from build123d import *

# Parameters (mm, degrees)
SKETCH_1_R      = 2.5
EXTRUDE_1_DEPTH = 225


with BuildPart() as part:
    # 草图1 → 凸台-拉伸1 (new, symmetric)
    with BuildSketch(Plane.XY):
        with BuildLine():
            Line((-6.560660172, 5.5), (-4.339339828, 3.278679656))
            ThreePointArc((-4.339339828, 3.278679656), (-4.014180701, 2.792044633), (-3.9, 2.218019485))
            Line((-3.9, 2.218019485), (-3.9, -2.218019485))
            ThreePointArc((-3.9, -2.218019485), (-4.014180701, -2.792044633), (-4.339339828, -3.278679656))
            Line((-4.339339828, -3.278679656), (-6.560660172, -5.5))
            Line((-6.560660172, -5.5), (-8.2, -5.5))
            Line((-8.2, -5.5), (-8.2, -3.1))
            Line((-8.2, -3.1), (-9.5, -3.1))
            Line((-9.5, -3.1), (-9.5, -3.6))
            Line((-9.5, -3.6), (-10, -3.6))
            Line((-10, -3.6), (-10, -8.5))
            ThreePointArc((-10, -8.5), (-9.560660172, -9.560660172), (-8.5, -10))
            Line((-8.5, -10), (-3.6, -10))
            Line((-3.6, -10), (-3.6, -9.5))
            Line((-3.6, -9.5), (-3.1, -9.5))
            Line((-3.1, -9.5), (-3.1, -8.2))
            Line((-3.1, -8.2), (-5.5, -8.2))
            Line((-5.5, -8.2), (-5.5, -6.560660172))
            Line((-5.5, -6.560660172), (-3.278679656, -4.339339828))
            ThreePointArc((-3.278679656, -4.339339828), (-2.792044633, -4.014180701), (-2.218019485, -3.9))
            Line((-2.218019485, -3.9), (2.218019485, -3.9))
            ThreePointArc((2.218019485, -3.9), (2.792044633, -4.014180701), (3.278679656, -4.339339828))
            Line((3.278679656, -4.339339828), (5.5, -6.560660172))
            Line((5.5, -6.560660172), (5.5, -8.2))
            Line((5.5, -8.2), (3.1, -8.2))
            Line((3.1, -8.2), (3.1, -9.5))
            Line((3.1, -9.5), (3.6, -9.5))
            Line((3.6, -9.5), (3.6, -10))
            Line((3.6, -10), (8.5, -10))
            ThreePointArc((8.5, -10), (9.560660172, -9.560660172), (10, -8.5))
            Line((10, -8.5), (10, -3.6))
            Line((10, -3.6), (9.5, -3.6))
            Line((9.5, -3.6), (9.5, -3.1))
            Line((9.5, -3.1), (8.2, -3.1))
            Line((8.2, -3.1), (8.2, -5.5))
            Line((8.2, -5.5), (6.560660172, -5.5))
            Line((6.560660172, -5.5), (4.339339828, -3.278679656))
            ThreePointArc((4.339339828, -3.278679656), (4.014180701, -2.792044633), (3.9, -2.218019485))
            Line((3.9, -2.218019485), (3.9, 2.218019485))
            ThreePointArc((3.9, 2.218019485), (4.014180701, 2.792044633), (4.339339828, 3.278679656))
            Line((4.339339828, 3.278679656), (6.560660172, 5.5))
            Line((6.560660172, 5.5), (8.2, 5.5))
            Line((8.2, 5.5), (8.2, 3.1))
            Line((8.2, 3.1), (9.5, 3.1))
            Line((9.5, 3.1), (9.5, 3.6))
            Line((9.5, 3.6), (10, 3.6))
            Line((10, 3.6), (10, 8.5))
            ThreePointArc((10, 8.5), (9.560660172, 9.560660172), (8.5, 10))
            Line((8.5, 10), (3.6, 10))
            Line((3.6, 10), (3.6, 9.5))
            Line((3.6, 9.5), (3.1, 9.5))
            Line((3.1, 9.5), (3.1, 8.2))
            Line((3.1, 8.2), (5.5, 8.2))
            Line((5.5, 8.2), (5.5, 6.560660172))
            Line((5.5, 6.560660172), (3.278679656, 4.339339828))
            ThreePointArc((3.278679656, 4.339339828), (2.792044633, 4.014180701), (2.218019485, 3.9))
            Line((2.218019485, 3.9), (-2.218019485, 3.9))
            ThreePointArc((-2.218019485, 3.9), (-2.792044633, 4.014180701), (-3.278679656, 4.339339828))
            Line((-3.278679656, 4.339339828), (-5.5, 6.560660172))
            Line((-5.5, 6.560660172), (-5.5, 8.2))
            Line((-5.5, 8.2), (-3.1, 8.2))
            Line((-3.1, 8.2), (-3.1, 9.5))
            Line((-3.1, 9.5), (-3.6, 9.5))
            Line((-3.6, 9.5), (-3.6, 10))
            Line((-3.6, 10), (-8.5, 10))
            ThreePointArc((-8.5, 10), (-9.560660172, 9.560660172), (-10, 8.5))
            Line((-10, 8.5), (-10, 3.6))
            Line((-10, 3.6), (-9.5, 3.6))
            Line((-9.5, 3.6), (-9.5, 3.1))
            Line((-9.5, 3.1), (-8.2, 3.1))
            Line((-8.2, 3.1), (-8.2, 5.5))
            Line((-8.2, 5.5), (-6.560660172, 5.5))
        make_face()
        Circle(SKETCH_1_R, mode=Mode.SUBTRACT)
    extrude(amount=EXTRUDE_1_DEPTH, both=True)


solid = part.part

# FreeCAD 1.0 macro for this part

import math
import FreeCAD as App
import Part
import Sketcher
from FreeCAD import Vector

doc = App.newDocument("Part")
body = doc.addObject("PartDesign::Body", "Body")

sketch1 = body.newObject("Sketcher::SketchObject", "Sketch")
sketch1.AttachmentSupport = (doc.getObject("XY_Plane"), [""])
sketch1.MapMode = "FlatFace"
sketch1.addGeometry(Part.LineSegment(Vector(-6.6, 5.5, 0), Vector(-4.3, 3.3, 0)), False)
sketch1.addGeometry(Part.ArcOfCircle(Part.Circle(Vector(-5.4, 2.2, 0), Vector(0, 0, 1), 1.5), math.radians(0), math.radians(45)), False)
sketch1.addGeometry(Part.LineSegment(Vector(-3.9, 2.2, 0), Vector(-3.9, -2.2, 0)), False)
sketch1.addGeometry(Part.ArcOfCircle(Part.Circle(Vector(-5.4, -2.2, 0), Vector(0, 0, 1), 1.5), math.radians(-45), math.radians(0)), False)
sketch1.addGeometry(Part.LineSegment(Vector(-4.3, -3.3, 0), Vector(-6.6, -5.5, 0)), False)
sketch1.addGeometry(Part.LineSegment(Vector(-6.6, -5.5, 0), Vector(-8.2, -5.5, 0)), False)
sketch1.addGeometry(Part.LineSegment(Vector(-8.2, -5.5, 0), Vector(-8.2, -3.1, 0)), False)
sketch1.addGeometry(Part.LineSegment(Vector(-8.2, -3.1, 0), Vector(-9.5, -3.1, 0)), False)
sketch1.addGeometry(Part.LineSegment(Vector(-9.5, -3.1, 0), Vector(-9.5, -3.6, 0)), False)
sketch1.addGeometry(Part.LineSegment(Vector(-9.5, -3.6, 0), Vector(-10, -3.6, 0)), False)
sketch1.addGeometry(Part.LineSegment(Vector(-10, -3.6, 0), Vector(-10, -8.5, 0)), False)
sketch1.addGeometry(Part.ArcOfCircle(Part.Circle(Vector(-8.5, -8.5, 0), Vector(0, 0, 1), 1.5), math.radians(180), math.radians(270)), False)
sketch1.addGeometry(Part.LineSegment(Vector(-8.5, -10, 0), Vector(-3.6, -10, 0)), False)
sketch1.addGeometry(Part.LineSegment(Vector(-3.6, -10, 0), Vector(-3.6, -9.5, 0)), False)
sketch1.addGeometry(Part.LineSegment(Vector(-3.6, -9.5, 0), Vector(-3.1, -9.5, 0)), False)
sketch1.addGeometry(Part.LineSegment(Vector(-3.1, -9.5, 0), Vector(-3.1, -8.2, 0)), False)
sketch1.addGeometry(Part.LineSegment(Vector(-3.1, -8.2, 0), Vector(-5.5, -8.2, 0)), False)
sketch1.addGeometry(Part.LineSegment(Vector(-5.5, -8.2, 0), Vector(-5.5, -6.6, 0)), False)
sketch1.addGeometry(Part.LineSegment(Vector(-5.5, -6.6, 0), Vector(-3.3, -4.3, 0)), False)
sketch1.addGeometry(Part.ArcOfCircle(Part.Circle(Vector(-2.2, -5.4, 0), Vector(0, 0, 1), 1.5), math.radians(90), math.radians(135)), False)
sketch1.addGeometry(Part.LineSegment(Vector(-2.2, -3.9, 0), Vector(2.2, -3.9, 0)), False)
sketch1.addGeometry(Part.ArcOfCircle(Part.Circle(Vector(2.2, -5.4, 0), Vector(0, 0, 1), 1.5), math.radians(45), math.radians(90)), False)
sketch1.addGeometry(Part.LineSegment(Vector(3.3, -4.3, 0), Vector(5.5, -6.6, 0)), False)
sketch1.addGeometry(Part.LineSegment(Vector(5.5, -6.6, 0), Vector(5.5, -8.2, 0)), False)
sketch1.addGeometry(Part.LineSegment(Vector(5.5, -8.2, 0), Vector(3.1, -8.2, 0)), False)
sketch1.addGeometry(Part.LineSegment(Vector(3.1, -8.2, 0), Vector(3.1, -9.5, 0)), False)
sketch1.addGeometry(Part.LineSegment(Vector(3.1, -9.5, 0), Vector(3.6, -9.5, 0)), False)
sketch1.addGeometry(Part.LineSegment(Vector(3.6, -9.5, 0), Vector(3.6, -10, 0)), False)
sketch1.addGeometry(Part.LineSegment(Vector(3.6, -10, 0), Vector(8.5, -10, 0)), False)
sketch1.addGeometry(Part.ArcOfCircle(Part.Circle(Vector(8.5, -8.5, 0), Vector(0, 0, 1), 1.5), math.radians(-90), math.radians(0)), False)
sketch1.addGeometry(Part.LineSegment(Vector(10, -8.5, 0), Vector(10, -3.6, 0)), False)
sketch1.addGeometry(Part.LineSegment(Vector(10, -3.6, 0), Vector(9.5, -3.6, 0)), False)
sketch1.addGeometry(Part.LineSegment(Vector(9.5, -3.6, 0), Vector(9.5, -3.1, 0)), False)
sketch1.addGeometry(Part.LineSegment(Vector(9.5, -3.1, 0), Vector(8.2, -3.1, 0)), False)
sketch1.addGeometry(Part.LineSegment(Vector(8.2, -3.1, 0), Vector(8.2, -5.5, 0)), False)
sketch1.addGeometry(Part.LineSegment(Vector(8.2, -5.5, 0), Vector(6.6, -5.5, 0)), False)
sketch1.addGeometry(Part.LineSegment(Vector(6.6, -5.5, 0), Vector(4.3, -3.3, 0)), False)
sketch1.addGeometry(Part.ArcOfCircle(Part.Circle(Vector(5.4, -2.2, 0), Vector(0, 0, 1), 1.5), math.radians(180), math.radians(225)), False)
sketch1.addGeometry(Part.LineSegment(Vector(3.9, -2.2, 0), Vector(3.9, 2.2, 0)), False)
sketch1.addGeometry(Part.ArcOfCircle(Part.Circle(Vector(5.4, 2.2, 0), Vector(0, 0, 1), 1.5), math.radians(135), math.radians(180)), False)
sketch1.addGeometry(Part.LineSegment(Vector(4.3, 3.3, 0), Vector(6.6, 5.5, 0)), False)
sketch1.addGeometry(Part.LineSegment(Vector(6.6, 5.5, 0), Vector(8.2, 5.5, 0)), False)
sketch1.addGeometry(Part.LineSegment(Vector(8.2, 5.5, 0), Vector(8.2, 3.1, 0)), False)
sketch1.addGeometry(Part.LineSegment(Vector(8.2, 3.1, 0), Vector(9.5, 3.1, 0)), False)
sketch1.addGeometry(Part.LineSegment(Vector(9.5, 3.1, 0), Vector(9.5, 3.6, 0)), False)
sketch1.addGeometry(Part.LineSegment(Vector(9.5, 3.6, 0), Vector(10, 3.6, 0)), False)
sketch1.addGeometry(Part.LineSegment(Vector(10, 3.6, 0), Vector(10, 8.5, 0)), False)
sketch1.addGeometry(Part.ArcOfCircle(Part.Circle(Vector(8.5, 8.5, 0), Vector(0, 0, 1), 1.5), math.radians(0), math.radians(90)), False)
sketch1.addGeometry(Part.LineSegment(Vector(8.5, 10, 0), Vector(3.6, 10, 0)), False)
sketch1.addGeometry(Part.LineSegment(Vector(3.6, 10, 0), Vector(3.6, 9.5, 0)), False)
sketch1.addGeometry(Part.LineSegment(Vector(3.6, 9.5, 0), Vector(3.1, 9.5, 0)), False)
sketch1.addGeometry(Part.LineSegment(Vector(3.1, 9.5, 0), Vector(3.1, 8.2, 0)), False)
sketch1.addGeometry(Part.LineSegment(Vector(3.1, 8.2, 0), Vector(5.5, 8.2, 0)), False)
sketch1.addGeometry(Part.LineSegment(Vector(5.5, 8.2, 0), Vector(5.5, 6.6, 0)), False)
sketch1.addGeometry(Part.LineSegment(Vector(5.5, 6.6, 0), Vector(3.3, 4.3, 0)), False)
sketch1.addGeometry(Part.ArcOfCircle(Part.Circle(Vector(2.2, 5.4, 0), Vector(0, 0, 1), 1.5), math.radians(-90), math.radians(-45)), False)
sketch1.addGeometry(Part.LineSegment(Vector(2.2, 3.9, 0), Vector(-2.2, 3.9, 0)), False)
sketch1.addGeometry(Part.ArcOfCircle(Part.Circle(Vector(-2.2, 5.4, 0), Vector(0, 0, 1), 1.5), math.radians(-135), math.radians(-90)), False)
sketch1.addGeometry(Part.LineSegment(Vector(-3.3, 4.3, 0), Vector(-5.5, 6.6, 0)), False)
sketch1.addGeometry(Part.LineSegment(Vector(-5.5, 6.6, 0), Vector(-5.5, 8.2, 0)), False)
sketch1.addGeometry(Part.LineSegment(Vector(-5.5, 8.2, 0), Vector(-3.1, 8.2, 0)), False)
sketch1.addGeometry(Part.LineSegment(Vector(-3.1, 8.2, 0), Vector(-3.1, 9.5, 0)), False)
sketch1.addGeometry(Part.LineSegment(Vector(-3.1, 9.5, 0), Vector(-3.6, 9.5, 0)), False)
sketch1.addGeometry(Part.LineSegment(Vector(-3.6, 9.5, 0), Vector(-3.6, 10, 0)), False)
sketch1.addGeometry(Part.LineSegment(Vector(-3.6, 10, 0), Vector(-8.5, 10, 0)), False)
sketch1.addGeometry(Part.ArcOfCircle(Part.Circle(Vector(-8.5, 8.5, 0), Vector(0, 0, 1), 1.5), math.radians(90), math.radians(180)), False)
sketch1.addGeometry(Part.LineSegment(Vector(-10, 8.5, 0), Vector(-10, 3.6, 0)), False)
sketch1.addGeometry(Part.LineSegment(Vector(-10, 3.6, 0), Vector(-9.5, 3.6, 0)), False)
sketch1.addGeometry(Part.LineSegment(Vector(-9.5, 3.6, 0), Vector(-9.5, 3.1, 0)), False)
sketch1.addGeometry(Part.LineSegment(Vector(-9.5, 3.1, 0), Vector(-8.2, 3.1, 0)), False)
sketch1.addGeometry(Part.LineSegment(Vector(-8.2, 3.1, 0), Vector(-8.2, 5.5, 0)), False)
sketch1.addGeometry(Part.LineSegment(Vector(-8.2, 5.5, 0), Vector(-6.6, 5.5, 0)), False)
sketch1.addGeometry(Part.Circle(Vector(0, 0, 0), Vector(0, 0, 1), 2.5), False)
sketch1.addConstraint(Sketcher.Constraint("Tangent", 0, 2, 1, 2))
sketch1.addConstraint(Sketcher.Constraint("Tangent", 1, 1, 2, 1))
sketch1.addConstraint(Sketcher.Constraint("Tangent", 2, 2, 3, 2))
sketch1.addConstraint(Sketcher.Constraint("Tangent", 3, 1, 4, 1))
sketch1.addConstraint(Sketcher.Constraint("Coincident", 4, 2, 5, 1))
sketch1.addConstraint(Sketcher.Constraint("Coincident", 5, 2, 6, 1))
sketch1.addConstraint(Sketcher.Constraint("Coincident", 6, 2, 7, 1))
sketch1.addConstraint(Sketcher.Constraint("Coincident", 7, 2, 8, 1))
sketch1.addConstraint(Sketcher.Constraint("Coincident", 8, 2, 9, 1))
sketch1.addConstraint(Sketcher.Constraint("Coincident", 9, 2, 10, 1))
sketch1.addConstraint(Sketcher.Constraint("Tangent", 10, 2, 11, 1))
sketch1.addConstraint(Sketcher.Constraint("Tangent", 11, 2, 12, 1))
sketch1.addConstraint(Sketcher.Constraint("Coincident", 12, 2, 13, 1))
sketch1.addConstraint(Sketcher.Constraint("Coincident", 13, 2, 14, 1))
sketch1.addConstraint(Sketcher.Constraint("Coincident", 14, 2, 15, 1))
sketch1.addConstraint(Sketcher.Constraint("Coincident", 15, 2, 16, 1))
sketch1.addConstraint(Sketcher.Constraint("Coincident", 16, 2, 17, 1))
sketch1.addConstraint(Sketcher.Constraint("Coincident", 17, 2, 18, 1))
sketch1.addConstraint(Sketcher.Constraint("Tangent", 18, 2, 19, 2))
sketch1.addConstraint(Sketcher.Constraint("Tangent", 19, 1, 20, 1))
sketch1.addConstraint(Sketcher.Constraint("Tangent", 20, 2, 21, 2))
sketch1.addConstraint(Sketcher.Constraint("Tangent", 21, 1, 22, 1))
sketch1.addConstraint(Sketcher.Constraint("Coincident", 22, 2, 23, 1))
sketch1.addConstraint(Sketcher.Constraint("Coincident", 23, 2, 24, 1))
sketch1.addConstraint(Sketcher.Constraint("Coincident", 24, 2, 25, 1))
sketch1.addConstraint(Sketcher.Constraint("Coincident", 25, 2, 26, 1))
sketch1.addConstraint(Sketcher.Constraint("Coincident", 26, 2, 27, 1))
sketch1.addConstraint(Sketcher.Constraint("Coincident", 27, 2, 28, 1))
sketch1.addConstraint(Sketcher.Constraint("Tangent", 28, 2, 29, 1))
sketch1.addConstraint(Sketcher.Constraint("Tangent", 29, 2, 30, 1))
sketch1.addConstraint(Sketcher.Constraint("Coincident", 30, 2, 31, 1))
sketch1.addConstraint(Sketcher.Constraint("Coincident", 31, 2, 32, 1))
sketch1.addConstraint(Sketcher.Constraint("Coincident", 32, 2, 33, 1))
sketch1.addConstraint(Sketcher.Constraint("Coincident", 33, 2, 34, 1))
sketch1.addConstraint(Sketcher.Constraint("Coincident", 34, 2, 35, 1))
sketch1.addConstraint(Sketcher.Constraint("Coincident", 35, 2, 36, 1))
sketch1.addConstraint(Sketcher.Constraint("Tangent", 36, 2, 37, 2))
sketch1.addConstraint(Sketcher.Constraint("Tangent", 37, 1, 38, 1))
sketch1.addConstraint(Sketcher.Constraint("Tangent", 38, 2, 39, 2))
sketch1.addConstraint(Sketcher.Constraint("Tangent", 39, 1, 40, 1))
sketch1.addConstraint(Sketcher.Constraint("Coincident", 40, 2, 41, 1))
sketch1.addConstraint(Sketcher.Constraint("Coincident", 41, 2, 42, 1))
sketch1.addConstraint(Sketcher.Constraint("Coincident", 42, 2, 43, 1))
sketch1.addConstraint(Sketcher.Constraint("Coincident", 43, 2, 44, 1))
sketch1.addConstraint(Sketcher.Constraint("Coincident", 44, 2, 45, 1))
sketch1.addConstraint(Sketcher.Constraint("Coincident", 45, 2, 46, 1))
sketch1.addConstraint(Sketcher.Constraint("Tangent", 46, 2, 47, 1))
sketch1.addConstraint(Sketcher.Constraint("Tangent", 47, 2, 48, 1))
sketch1.addConstraint(Sketcher.Constraint("Coincident", 48, 2, 49, 1))
sketch1.addConstraint(Sketcher.Constraint("Coincident", 49, 2, 50, 1))
sketch1.addConstraint(Sketcher.Constraint("Coincident", 50, 2, 51, 1))
sketch1.addConstraint(Sketcher.Constraint("Coincident", 51, 2, 52, 1))
sketch1.addConstraint(Sketcher.Constraint("Coincident", 52, 2, 53, 1))
sketch1.addConstraint(Sketcher.Constraint("Coincident", 53, 2, 54, 1))
sketch1.addConstraint(Sketcher.Constraint("Tangent", 54, 2, 55, 2))
sketch1.addConstraint(Sketcher.Constraint("Tangent", 55, 1, 56, 1))
sketch1.addConstraint(Sketcher.Constraint("Tangent", 56, 2, 57, 2))
sketch1.addConstraint(Sketcher.Constraint("Tangent", 57, 1, 58, 1))
sketch1.addConstraint(Sketcher.Constraint("Coincident", 58, 2, 59, 1))
sketch1.addConstraint(Sketcher.Constraint("Coincident", 59, 2, 60, 1))
sketch1.addConstraint(Sketcher.Constraint("Coincident", 60, 2, 61, 1))
sketch1.addConstraint(Sketcher.Constraint("Coincident", 61, 2, 62, 1))
sketch1.addConstraint(Sketcher.Constraint("Coincident", 62, 2, 63, 1))
sketch1.addConstraint(Sketcher.Constraint("Coincident", 63, 2, 64, 1))
sketch1.addConstraint(Sketcher.Constraint("Tangent", 64, 2, 65, 1))
sketch1.addConstraint(Sketcher.Constraint("Tangent", 65, 2, 66, 1))
sketch1.addConstraint(Sketcher.Constraint("Coincident", 66, 2, 67, 1))
sketch1.addConstraint(Sketcher.Constraint("Coincident", 67, 2, 68, 1))
sketch1.addConstraint(Sketcher.Constraint("Coincident", 68, 2, 69, 1))
sketch1.addConstraint(Sketcher.Constraint("Coincident", 69, 2, 70, 1))
sketch1.addConstraint(Sketcher.Constraint("Coincident", 70, 2, 71, 1))
sketch1.addConstraint(Sketcher.Constraint("Coincident", 71, 2, 0, 1))
sketch1.addConstraint(Sketcher.Constraint("Vertical", 2))
sketch1.addConstraint(Sketcher.Constraint("Horizontal", 5))
sketch1.addConstraint(Sketcher.Constraint("Vertical", 6))
sketch1.addConstraint(Sketcher.Constraint("Horizontal", 7))
sketch1.addConstraint(Sketcher.Constraint("Vertical", 8))
sketch1.addConstraint(Sketcher.Constraint("Horizontal", 9))
sketch1.addConstraint(Sketcher.Constraint("Vertical", 10))
sketch1.addConstraint(Sketcher.Constraint("Horizontal", 12))
sketch1.addConstraint(Sketcher.Constraint("Vertical", 13))
sketch1.addConstraint(Sketcher.Constraint("Horizontal", 14))
sketch1.addConstraint(Sketcher.Constraint("Vertical", 15))
sketch1.addConstraint(Sketcher.Constraint("Horizontal", 16))
sketch1.addConstraint(Sketcher.Constraint("Vertical", 17))
sketch1.addConstraint(Sketcher.Constraint("Horizontal", 20))
sketch1.addConstraint(Sketcher.Constraint("Vertical", 23))
sketch1.addConstraint(Sketcher.Constraint("Horizontal", 24))
sketch1.addConstraint(Sketcher.Constraint("Vertical", 25))
sketch1.addConstraint(Sketcher.Constraint("Horizontal", 26))
sketch1.addConstraint(Sketcher.Constraint("Vertical", 27))
sketch1.addConstraint(Sketcher.Constraint("Horizontal", 28))
sketch1.addConstraint(Sketcher.Constraint("Vertical", 30))
sketch1.addConstraint(Sketcher.Constraint("Horizontal", 31))
sketch1.addConstraint(Sketcher.Constraint("Vertical", 32))
sketch1.addConstraint(Sketcher.Constraint("Horizontal", 33))
sketch1.addConstraint(Sketcher.Constraint("Vertical", 34))
sketch1.addConstraint(Sketcher.Constraint("Horizontal", 35))
sketch1.addConstraint(Sketcher.Constraint("Vertical", 38))
sketch1.addConstraint(Sketcher.Constraint("Horizontal", 41))
sketch1.addConstraint(Sketcher.Constraint("Vertical", 42))
sketch1.addConstraint(Sketcher.Constraint("Horizontal", 43))
sketch1.addConstraint(Sketcher.Constraint("Vertical", 44))
sketch1.addConstraint(Sketcher.Constraint("Horizontal", 45))
sketch1.addConstraint(Sketcher.Constraint("Vertical", 46))
sketch1.addConstraint(Sketcher.Constraint("Horizontal", 48))
sketch1.addConstraint(Sketcher.Constraint("Vertical", 49))
sketch1.addConstraint(Sketcher.Constraint("Horizontal", 50))
sketch1.addConstraint(Sketcher.Constraint("Vertical", 51))
sketch1.addConstraint(Sketcher.Constraint("Horizontal", 52))
sketch1.addConstraint(Sketcher.Constraint("Vertical", 53))
sketch1.addConstraint(Sketcher.Constraint("Horizontal", 56))
sketch1.addConstraint(Sketcher.Constraint("Vertical", 59))
sketch1.addConstraint(Sketcher.Constraint("Horizontal", 60))
sketch1.addConstraint(Sketcher.Constraint("Vertical", 61))
sketch1.addConstraint(Sketcher.Constraint("Horizontal", 62))
sketch1.addConstraint(Sketcher.Constraint("Vertical", 63))
sketch1.addConstraint(Sketcher.Constraint("Horizontal", 64))
sketch1.addConstraint(Sketcher.Constraint("Vertical", 66))
sketch1.addConstraint(Sketcher.Constraint("Horizontal", 67))
sketch1.addConstraint(Sketcher.Constraint("Vertical", 68))
sketch1.addConstraint(Sketcher.Constraint("Horizontal", 69))
sketch1.addConstraint(Sketcher.Constraint("Vertical", 70))
sketch1.addConstraint(Sketcher.Constraint("Horizontal", 71))
sketch1.addConstraint(Sketcher.Constraint("Coincident", 72, 3, -1, 1))
sketch1.addConstraint(Sketcher.Constraint("Equal", 1, 3))
sketch1.addConstraint(Sketcher.Constraint("Equal", 3, 11))
sketch1.addConstraint(Sketcher.Constraint("Equal", 11, 19))
sketch1.addConstraint(Sketcher.Constraint("Equal", 19, 21))
sketch1.addConstraint(Sketcher.Constraint("Equal", 21, 29))
sketch1.addConstraint(Sketcher.Constraint("Equal", 29, 37))
sketch1.addConstraint(Sketcher.Constraint("Equal", 37, 39))
sketch1.addConstraint(Sketcher.Constraint("Equal", 39, 47))
sketch1.addConstraint(Sketcher.Constraint("Equal", 47, 55))
sketch1.addConstraint(Sketcher.Constraint("Equal", 55, 57))
sketch1.addConstraint(Sketcher.Constraint("Equal", 57, 65))
sketch1.addConstraint(Sketcher.Constraint("Symmetric", 1, 3, 37, 3, -1, 1))
sketch1.addConstraint(Sketcher.Constraint("Symmetric", 11, 3, 47, 3, -1, 1))
sketch1.addConstraint(Sketcher.Constraint("Symmetric", 19, 3, 55, 3, -1, 1))
sketch1.addConstraint(Sketcher.Constraint("Symmetric", 29, 3, 65, 3, -1, 1))
sketch1.addConstraint(Sketcher.Constraint("Symmetric", 3, 1, 39, 1, -1, 1))
sketch1.addConstraint(Sketcher.Constraint("Symmetric", 5, 2, 41, 2, -1, 1))
sketch1.addConstraint(Sketcher.Constraint("Symmetric", 7, 2, 43, 2, -1, 1))
sketch1.addConstraint(Sketcher.Constraint("Symmetric", 13, 2, 49, 2, -1, 1))
sketch1.addConstraint(Sketcher.Constraint("Symmetric", 15, 2, 51, 2, -1, 1))
sketch1.addConstraint(Sketcher.Constraint("Symmetric", 17, 2, 53, 2, -1, 1))
sketch1.addConstraint(Sketcher.Constraint("Symmetric", 21, 1, 57, 1, -1, 1))
sketch1.addConstraint(Sketcher.Constraint("Symmetric", 23, 2, 59, 2, -1, 1))
sketch1.addConstraint(Sketcher.Constraint("Symmetric", 25, 2, 61, 2, -1, 1))
sketch1.addConstraint(Sketcher.Constraint("Symmetric", 31, 2, 67, 2, -1, 1))
sketch1.addConstraint(Sketcher.Constraint("Symmetric", 33, 2, 69, 2, -1, 1))
sketch1.addConstraint(Sketcher.Constraint("Symmetric", 35, 2, 71, 2, -1, 1))
sketch1.addConstraint(Sketcher.Constraint("Symmetric", 11, 3, 29, 3, -2))
sketch1.addConstraint(Sketcher.Constraint("Symmetric", 18, 2, 21, 1, -2))
sketch1.addConstraint(Sketcher.Constraint("Symmetric", 16, 2, 23, 2, -2))
sketch1.addConstraint(Sketcher.Constraint("Symmetric", 14, 2, 25, 2, -2))
sketch1.addConstraint(Sketcher.Constraint("Symmetric", 8, 2, 31, 2, -2))
sketch1.addConstraint(Sketcher.Constraint("Symmetric", 6, 2, 33, 2, -2))
sketch1.addConstraint(Sketcher.Constraint("Symmetric", 4, 2, 35, 2, -2))
sketch1.addConstraint(Sketcher.Constraint("Perpendicular", 0, 4))
sketch1.addConstraint(Sketcher.Constraint("Parallel", 4, 18))
sketch1.addConstraint(Sketcher.Constraint("Perpendicular", 18, 22))
sketch1.addConstraint(Sketcher.Constraint("Horizontal", 45, 2, 66, 2))
sketch1.addConstraint(Sketcher.Constraint("Vertical", 27, 2, 48, 2))
sketch1.addConstraint(Sketcher.Constraint("Vertical", 13, 2, 62, 2))
sketch1.addConstraint(Sketcher.Constraint("Equal", 9, 14))
sketch1.addConstraint(Sketcher.Constraint("Equal", 56, 2))
sketch1.addConstraint(Sketcher.Constraint("Equal", 60, 6))
sketch1.addConstraint(Sketcher.Constraint("Equal", 67, 8))
sketch1.addConstraint(Sketcher.Constraint("Equal", 64, 10))
sketch1.addConstraint(Sketcher.Constraint("Equal", 8, 13))
sketch1.addConstraint(Sketcher.Constraint("Equal", 69, 15))
sketch1.addConstraint(Sketcher.Constraint("Equal", 71, 17))
sketch1.addConstraint(Sketcher.Constraint("Equal", 4, 18))
sketch1.addConstraint(Sketcher.Constraint("Diameter", 72, 5.0))
sketch1.addConstraint(Sketcher.Constraint("Radius", 1, 1.5))
sketch1.addConstraint(Sketcher.Constraint("DistanceX", 7, 2, 7, 1, 1.3))
sketch1.addConstraint(Sketcher.Constraint("DistanceX", 9, 2, 9, 1, 0.5))
sketch1.addConstraint(Sketcher.Constraint("DistanceX", 12, 1, 12, 2, 4.9))
sketch1.addConstraint(Sketcher.Constraint("DistanceX", 16, 2, 16, 1, 2.4))
sketch1.addConstraint(Sketcher.Constraint("DistanceX", 9, 2, -1, 1, 10.0))
sketch1.addConstraint(Sketcher.Constraint("DistanceX", 1, 3, -1, 1, 5.4))
sketch1.addConstraint(Sketcher.Constraint("DistanceX", 5, 2, 5, 1, 1.63934))
pad1 = body.newObject("PartDesign::Pad", "Pad")
pad1.Profile = sketch1
pad1.Length = 450
pad1.Midplane = True

doc.recompute()
